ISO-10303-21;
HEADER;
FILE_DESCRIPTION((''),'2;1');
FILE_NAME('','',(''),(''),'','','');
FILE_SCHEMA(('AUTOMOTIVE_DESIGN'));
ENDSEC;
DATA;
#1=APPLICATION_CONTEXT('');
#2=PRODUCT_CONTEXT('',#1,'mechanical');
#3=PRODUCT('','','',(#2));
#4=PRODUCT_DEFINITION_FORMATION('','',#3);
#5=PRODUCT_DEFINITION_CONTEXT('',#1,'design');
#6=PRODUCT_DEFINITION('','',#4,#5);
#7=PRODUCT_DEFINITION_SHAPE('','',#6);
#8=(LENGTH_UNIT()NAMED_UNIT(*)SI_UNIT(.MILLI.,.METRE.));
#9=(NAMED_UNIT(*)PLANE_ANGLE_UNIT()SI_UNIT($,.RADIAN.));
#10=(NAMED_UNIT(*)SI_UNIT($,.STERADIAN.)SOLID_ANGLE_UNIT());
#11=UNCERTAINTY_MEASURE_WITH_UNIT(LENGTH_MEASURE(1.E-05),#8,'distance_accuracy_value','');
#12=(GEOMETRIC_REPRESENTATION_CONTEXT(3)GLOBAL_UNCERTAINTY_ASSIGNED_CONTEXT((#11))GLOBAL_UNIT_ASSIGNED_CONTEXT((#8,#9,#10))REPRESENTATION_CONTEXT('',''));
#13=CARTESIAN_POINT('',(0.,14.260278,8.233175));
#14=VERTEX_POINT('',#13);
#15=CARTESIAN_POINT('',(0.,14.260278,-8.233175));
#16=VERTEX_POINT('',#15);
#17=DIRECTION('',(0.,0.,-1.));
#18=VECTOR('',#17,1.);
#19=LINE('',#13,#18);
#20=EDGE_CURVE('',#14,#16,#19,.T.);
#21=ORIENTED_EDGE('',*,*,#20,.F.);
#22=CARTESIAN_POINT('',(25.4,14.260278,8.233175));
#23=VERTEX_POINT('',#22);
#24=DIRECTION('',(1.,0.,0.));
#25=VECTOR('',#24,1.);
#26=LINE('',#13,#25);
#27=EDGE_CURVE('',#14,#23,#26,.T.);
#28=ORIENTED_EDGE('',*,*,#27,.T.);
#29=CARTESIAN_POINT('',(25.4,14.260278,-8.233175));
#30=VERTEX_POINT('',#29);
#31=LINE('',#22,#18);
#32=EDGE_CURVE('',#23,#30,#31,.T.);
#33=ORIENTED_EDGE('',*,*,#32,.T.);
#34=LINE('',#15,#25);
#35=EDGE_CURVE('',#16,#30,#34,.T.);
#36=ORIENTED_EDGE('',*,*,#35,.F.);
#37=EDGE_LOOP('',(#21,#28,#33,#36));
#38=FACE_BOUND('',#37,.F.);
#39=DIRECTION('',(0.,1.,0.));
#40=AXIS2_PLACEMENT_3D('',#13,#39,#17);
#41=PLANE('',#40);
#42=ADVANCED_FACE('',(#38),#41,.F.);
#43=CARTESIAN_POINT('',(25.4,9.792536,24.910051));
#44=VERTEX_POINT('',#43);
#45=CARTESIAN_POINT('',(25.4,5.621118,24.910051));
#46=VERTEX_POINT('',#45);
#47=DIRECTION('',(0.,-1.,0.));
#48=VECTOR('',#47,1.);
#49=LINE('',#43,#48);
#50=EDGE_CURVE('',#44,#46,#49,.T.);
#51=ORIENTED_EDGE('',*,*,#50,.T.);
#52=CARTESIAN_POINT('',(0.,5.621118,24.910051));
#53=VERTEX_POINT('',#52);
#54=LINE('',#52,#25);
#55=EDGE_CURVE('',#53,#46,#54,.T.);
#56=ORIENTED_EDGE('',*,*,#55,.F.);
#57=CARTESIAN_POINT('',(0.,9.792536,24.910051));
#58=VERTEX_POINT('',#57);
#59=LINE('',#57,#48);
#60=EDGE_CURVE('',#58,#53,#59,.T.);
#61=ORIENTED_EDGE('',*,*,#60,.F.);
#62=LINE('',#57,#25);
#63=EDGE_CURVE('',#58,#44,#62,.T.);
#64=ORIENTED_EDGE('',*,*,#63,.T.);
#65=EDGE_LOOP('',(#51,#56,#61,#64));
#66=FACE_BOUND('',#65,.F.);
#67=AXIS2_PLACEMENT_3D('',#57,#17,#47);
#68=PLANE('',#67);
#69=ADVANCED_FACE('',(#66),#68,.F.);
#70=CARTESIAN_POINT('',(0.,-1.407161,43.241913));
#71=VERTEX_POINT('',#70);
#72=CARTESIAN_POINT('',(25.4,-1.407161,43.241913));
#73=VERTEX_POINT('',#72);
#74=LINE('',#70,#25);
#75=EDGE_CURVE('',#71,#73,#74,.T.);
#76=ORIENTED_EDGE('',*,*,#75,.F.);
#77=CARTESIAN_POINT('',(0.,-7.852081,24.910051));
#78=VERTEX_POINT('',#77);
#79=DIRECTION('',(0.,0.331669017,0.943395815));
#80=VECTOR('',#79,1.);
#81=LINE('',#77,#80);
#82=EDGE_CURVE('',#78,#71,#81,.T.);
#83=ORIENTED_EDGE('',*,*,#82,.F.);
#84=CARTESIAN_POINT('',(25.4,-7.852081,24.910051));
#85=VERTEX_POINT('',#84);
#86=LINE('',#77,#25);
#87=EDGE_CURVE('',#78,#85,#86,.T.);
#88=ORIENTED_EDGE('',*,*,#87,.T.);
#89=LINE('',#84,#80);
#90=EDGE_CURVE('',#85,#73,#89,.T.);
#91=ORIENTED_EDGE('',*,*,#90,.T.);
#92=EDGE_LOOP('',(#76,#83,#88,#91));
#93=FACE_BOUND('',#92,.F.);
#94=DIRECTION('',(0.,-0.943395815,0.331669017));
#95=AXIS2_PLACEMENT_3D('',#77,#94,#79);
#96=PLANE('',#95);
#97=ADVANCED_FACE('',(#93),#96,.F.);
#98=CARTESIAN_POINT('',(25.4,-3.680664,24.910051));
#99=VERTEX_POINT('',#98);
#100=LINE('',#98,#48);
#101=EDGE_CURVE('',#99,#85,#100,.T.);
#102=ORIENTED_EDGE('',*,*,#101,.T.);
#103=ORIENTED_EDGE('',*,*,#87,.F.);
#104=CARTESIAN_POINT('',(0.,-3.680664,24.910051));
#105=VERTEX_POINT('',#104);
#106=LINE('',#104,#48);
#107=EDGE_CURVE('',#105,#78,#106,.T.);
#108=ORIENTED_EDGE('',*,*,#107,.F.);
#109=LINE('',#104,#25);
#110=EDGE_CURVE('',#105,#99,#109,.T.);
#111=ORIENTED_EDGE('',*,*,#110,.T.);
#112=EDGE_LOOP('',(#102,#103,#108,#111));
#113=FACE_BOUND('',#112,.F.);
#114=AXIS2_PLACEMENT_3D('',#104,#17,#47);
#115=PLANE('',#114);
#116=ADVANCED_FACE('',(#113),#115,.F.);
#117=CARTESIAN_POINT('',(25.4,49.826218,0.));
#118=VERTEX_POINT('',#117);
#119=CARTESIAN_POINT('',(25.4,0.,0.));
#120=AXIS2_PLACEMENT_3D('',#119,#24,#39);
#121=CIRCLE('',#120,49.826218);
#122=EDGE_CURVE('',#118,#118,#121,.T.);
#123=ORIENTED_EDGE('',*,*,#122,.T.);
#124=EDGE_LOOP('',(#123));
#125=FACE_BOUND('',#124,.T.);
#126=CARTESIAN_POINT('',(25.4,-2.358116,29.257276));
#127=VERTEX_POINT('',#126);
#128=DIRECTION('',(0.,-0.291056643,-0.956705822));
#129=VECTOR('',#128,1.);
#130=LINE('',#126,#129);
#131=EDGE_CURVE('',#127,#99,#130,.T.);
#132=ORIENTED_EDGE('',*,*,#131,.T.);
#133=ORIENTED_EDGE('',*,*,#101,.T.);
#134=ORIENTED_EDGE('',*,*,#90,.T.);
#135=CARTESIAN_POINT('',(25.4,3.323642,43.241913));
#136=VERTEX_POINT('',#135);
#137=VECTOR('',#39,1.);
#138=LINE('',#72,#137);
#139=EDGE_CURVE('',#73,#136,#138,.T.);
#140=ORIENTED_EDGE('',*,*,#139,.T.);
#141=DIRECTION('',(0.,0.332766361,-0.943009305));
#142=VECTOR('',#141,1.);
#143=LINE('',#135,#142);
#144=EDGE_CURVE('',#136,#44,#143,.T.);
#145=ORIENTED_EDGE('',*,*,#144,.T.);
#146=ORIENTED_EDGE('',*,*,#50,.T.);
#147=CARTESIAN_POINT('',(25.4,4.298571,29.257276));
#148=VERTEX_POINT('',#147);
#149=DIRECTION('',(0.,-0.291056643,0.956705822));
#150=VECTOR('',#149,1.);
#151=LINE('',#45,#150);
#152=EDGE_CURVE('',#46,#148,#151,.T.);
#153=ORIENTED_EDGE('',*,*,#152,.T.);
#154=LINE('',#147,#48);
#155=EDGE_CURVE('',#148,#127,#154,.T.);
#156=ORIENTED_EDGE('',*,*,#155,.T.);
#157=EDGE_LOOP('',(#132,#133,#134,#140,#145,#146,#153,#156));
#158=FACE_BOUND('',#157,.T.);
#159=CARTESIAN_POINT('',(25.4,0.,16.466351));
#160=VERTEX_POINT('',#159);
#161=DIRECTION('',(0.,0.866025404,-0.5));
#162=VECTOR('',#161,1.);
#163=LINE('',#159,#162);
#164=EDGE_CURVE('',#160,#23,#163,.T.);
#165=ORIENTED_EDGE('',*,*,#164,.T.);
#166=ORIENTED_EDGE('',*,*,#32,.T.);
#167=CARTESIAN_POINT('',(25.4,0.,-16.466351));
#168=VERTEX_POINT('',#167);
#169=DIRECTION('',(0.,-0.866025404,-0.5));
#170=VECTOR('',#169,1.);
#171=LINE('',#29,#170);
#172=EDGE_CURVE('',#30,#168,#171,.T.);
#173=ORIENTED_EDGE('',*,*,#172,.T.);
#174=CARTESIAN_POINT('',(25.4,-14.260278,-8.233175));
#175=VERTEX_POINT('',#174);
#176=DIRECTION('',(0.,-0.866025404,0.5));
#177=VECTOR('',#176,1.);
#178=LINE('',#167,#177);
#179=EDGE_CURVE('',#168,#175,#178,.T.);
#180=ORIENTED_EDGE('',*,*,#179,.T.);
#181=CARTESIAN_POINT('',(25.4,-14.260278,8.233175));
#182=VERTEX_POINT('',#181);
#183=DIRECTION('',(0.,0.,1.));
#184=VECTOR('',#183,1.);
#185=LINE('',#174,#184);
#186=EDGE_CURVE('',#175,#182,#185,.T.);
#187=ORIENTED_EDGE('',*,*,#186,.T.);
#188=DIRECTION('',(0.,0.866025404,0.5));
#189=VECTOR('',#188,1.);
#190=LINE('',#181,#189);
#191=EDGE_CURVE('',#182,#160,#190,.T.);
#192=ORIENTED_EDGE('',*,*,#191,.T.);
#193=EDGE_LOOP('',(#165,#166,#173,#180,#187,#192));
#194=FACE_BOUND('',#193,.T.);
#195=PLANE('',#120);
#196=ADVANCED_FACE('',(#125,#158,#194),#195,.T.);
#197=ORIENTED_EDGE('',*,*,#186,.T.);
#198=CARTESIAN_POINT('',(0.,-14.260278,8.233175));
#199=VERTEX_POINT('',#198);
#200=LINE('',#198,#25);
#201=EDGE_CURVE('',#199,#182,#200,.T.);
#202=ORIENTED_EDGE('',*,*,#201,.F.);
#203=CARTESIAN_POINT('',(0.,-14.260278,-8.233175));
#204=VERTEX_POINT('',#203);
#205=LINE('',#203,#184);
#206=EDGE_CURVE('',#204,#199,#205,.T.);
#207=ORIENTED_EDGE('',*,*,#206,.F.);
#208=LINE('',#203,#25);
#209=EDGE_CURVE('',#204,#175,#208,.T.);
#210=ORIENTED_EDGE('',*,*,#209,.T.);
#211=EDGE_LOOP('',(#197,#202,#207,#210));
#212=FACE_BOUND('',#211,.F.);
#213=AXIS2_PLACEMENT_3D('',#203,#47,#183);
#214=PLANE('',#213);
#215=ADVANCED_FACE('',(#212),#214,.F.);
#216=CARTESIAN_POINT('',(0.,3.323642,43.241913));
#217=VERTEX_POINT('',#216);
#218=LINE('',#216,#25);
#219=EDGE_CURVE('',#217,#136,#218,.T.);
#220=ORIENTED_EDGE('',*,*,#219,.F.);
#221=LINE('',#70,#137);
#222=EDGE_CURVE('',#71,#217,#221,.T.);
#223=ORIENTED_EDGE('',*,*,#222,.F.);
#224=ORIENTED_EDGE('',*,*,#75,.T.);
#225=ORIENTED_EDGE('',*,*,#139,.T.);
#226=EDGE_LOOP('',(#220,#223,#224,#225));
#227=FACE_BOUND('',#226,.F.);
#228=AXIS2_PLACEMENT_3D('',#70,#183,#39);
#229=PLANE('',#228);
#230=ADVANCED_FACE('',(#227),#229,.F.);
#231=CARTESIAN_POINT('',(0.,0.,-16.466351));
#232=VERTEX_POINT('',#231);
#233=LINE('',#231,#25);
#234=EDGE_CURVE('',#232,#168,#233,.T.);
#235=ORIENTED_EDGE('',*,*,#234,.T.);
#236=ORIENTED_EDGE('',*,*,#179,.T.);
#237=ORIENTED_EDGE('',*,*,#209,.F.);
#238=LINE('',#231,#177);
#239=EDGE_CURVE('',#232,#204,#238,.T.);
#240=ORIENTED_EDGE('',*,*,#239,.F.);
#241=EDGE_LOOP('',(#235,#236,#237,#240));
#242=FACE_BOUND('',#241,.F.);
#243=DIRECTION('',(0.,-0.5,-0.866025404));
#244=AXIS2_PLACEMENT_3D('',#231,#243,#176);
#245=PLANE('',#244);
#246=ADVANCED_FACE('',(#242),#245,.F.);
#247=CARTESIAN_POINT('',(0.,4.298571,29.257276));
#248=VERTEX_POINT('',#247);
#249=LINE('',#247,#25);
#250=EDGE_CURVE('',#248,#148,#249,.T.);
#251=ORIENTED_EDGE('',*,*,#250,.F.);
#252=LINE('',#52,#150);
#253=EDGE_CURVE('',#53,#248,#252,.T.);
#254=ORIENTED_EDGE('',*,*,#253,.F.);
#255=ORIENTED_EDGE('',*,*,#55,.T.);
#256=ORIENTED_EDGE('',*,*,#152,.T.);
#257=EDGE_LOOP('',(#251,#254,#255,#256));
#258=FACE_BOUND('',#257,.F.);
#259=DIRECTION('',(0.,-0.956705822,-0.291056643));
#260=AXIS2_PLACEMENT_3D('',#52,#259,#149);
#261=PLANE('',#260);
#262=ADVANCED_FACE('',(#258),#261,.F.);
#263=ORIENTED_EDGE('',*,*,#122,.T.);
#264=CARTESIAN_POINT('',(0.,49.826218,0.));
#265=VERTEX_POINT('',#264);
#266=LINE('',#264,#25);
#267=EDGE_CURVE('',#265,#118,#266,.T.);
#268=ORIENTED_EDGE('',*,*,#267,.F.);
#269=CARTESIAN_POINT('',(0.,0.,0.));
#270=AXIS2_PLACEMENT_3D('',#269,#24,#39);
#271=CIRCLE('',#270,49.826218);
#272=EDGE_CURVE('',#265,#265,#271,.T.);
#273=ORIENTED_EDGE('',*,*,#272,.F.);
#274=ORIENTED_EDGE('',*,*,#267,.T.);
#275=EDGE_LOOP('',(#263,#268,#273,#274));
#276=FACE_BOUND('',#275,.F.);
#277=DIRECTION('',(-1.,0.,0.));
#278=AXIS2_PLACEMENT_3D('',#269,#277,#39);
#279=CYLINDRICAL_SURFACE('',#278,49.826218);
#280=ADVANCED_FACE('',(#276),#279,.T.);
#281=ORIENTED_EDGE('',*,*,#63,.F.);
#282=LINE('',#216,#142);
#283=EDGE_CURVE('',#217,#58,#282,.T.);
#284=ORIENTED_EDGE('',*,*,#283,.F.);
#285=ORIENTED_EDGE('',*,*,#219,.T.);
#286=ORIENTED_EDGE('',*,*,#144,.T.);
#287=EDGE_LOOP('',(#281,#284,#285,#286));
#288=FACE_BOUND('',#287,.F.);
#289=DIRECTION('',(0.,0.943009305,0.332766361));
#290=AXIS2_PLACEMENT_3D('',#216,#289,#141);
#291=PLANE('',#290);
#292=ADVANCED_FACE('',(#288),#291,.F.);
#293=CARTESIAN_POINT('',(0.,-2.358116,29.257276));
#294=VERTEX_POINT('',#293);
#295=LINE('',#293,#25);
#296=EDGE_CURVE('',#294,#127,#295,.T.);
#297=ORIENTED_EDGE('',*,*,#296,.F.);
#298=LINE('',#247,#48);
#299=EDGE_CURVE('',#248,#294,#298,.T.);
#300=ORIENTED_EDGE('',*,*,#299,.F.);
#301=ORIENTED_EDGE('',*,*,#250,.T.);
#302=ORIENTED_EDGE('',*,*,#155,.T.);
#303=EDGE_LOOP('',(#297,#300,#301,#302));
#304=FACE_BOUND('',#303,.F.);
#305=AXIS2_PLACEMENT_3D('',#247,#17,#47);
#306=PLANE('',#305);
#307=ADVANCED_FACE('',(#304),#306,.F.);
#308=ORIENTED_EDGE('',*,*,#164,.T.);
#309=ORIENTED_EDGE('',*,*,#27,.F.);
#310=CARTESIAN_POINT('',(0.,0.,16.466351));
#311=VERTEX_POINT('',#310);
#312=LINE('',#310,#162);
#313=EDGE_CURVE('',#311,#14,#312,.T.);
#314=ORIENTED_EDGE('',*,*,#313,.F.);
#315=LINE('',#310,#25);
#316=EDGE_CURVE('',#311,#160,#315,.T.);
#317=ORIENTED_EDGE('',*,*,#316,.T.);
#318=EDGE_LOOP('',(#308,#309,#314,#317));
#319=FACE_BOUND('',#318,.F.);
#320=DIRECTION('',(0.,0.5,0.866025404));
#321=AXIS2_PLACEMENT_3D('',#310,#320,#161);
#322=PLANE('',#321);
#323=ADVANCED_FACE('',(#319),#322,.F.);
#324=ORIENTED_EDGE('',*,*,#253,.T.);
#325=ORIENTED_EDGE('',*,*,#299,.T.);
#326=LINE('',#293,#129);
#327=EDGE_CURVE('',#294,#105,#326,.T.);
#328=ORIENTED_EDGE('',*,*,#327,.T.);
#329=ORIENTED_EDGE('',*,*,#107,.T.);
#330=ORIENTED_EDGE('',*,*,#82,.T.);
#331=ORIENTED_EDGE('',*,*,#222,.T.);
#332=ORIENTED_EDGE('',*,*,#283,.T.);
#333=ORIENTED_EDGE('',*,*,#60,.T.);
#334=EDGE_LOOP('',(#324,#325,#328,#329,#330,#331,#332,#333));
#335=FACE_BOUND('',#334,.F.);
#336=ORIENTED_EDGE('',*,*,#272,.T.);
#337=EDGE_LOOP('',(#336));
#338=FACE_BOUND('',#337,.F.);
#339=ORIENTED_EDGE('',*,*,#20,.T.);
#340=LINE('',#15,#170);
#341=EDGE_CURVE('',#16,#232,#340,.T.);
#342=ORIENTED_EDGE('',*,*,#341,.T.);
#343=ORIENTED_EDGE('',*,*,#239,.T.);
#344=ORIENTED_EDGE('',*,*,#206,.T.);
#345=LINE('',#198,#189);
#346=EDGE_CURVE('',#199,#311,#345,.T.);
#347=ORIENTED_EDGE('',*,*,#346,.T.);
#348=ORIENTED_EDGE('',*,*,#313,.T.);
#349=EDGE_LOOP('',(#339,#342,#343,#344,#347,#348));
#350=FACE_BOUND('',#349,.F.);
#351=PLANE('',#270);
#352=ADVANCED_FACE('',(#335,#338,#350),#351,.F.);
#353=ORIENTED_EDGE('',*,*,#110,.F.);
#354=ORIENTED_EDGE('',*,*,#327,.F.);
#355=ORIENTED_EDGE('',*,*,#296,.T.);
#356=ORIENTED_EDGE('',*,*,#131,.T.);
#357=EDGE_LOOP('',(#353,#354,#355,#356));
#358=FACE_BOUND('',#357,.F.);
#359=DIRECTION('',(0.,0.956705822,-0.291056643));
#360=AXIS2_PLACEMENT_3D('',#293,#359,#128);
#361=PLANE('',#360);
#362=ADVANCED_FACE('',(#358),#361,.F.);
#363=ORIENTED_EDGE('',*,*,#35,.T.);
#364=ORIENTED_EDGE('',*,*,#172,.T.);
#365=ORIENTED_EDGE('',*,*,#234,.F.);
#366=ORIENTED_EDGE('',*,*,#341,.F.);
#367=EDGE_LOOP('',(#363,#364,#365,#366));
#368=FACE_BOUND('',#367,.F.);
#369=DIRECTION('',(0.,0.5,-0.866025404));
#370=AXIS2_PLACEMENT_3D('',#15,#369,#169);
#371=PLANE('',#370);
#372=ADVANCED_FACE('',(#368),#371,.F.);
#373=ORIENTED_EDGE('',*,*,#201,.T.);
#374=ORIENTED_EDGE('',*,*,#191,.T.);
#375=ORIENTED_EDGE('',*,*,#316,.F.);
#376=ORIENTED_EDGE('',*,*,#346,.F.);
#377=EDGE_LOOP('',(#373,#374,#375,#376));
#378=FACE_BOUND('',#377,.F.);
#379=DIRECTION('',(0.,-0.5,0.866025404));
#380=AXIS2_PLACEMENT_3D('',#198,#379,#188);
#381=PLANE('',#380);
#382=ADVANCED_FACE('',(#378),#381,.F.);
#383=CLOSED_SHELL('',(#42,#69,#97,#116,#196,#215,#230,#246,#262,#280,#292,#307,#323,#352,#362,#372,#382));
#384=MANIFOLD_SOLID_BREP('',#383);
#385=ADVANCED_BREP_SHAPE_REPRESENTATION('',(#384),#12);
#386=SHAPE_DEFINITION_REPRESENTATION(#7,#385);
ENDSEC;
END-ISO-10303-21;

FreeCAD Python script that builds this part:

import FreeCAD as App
import Part
import Sketcher

V = App.Vector
Q = App.Units.Quantity


def add_polygon(sketch, points):
    """Adds a closed chain of lines whose ends are joined by coincident constraints."""
    first, n = sketch.GeometryCount, len(points)
    for a, b in zip(points, points[1:] + points[:1]):
        sketch.addGeometry(Part.LineSegment(App.Vector(*a, 0), App.Vector(*b, 0)), False)
    for i in range(n):
        sketch.addConstraint(Sketcher.Constraint("Coincident", first + i, 2, first + (i + 1) % n, 1))

doc = App.newDocument("Part")
body = doc.addObject("PartDesign::Body", "Body")

sketch1 = doc.addObject("Sketcher::SketchObject", "Sketch")
body.addObject(sketch1)
sketch1.AttachmentSupport = (doc.YZ_Plane, [""])
sketch1.MapMode = "FlatFace"
sketch1.addGeometry(Part.Circle(V(0, 0, 0), V(0, 0, 1), 49.8), False)
add_polygon(sketch1, [(-14.3, 8.2), (0, 16.5), (14.3, 8.2), (14.3, -8.2), (0, -16.5), (-14.3, -8.2)])
add_polygon(sketch1, [(3.3, 43.2), (9.8, 24.9), (5.6, 24.9), (4.3, 29.3), (-2.4, 29.3), (-3.7, 24.9), (-7.9, 24.9), (-1.4, 43.2)])
sketch1.addConstraint(Sketcher.Constraint("Vertical", 3))
sketch1.addConstraint(Sketcher.Constraint("Vertical", 6))
sketch1.addConstraint(Sketcher.Constraint("Horizontal", 8))
sketch1.addConstraint(Sketcher.Constraint("Horizontal", 10))
sketch1.addConstraint(Sketcher.Constraint("Horizontal", 12))
sketch1.addConstraint(Sketcher.Constraint("Horizontal", 14))
sketch1.addConstraint(Sketcher.Constraint("Coincident", 0, 3, -1, 1))
sketch1.addConstraint(Sketcher.Constraint("Symmetric", 1, 2, 4, 2, -1, 1))
sketch1.addConstraint(Sketcher.Constraint("Symmetric", 2, 2, 5, 2, -1, 1))
sketch1.addConstraint(Sketcher.Constraint("PointOnObject", 1, 2, -2))
sketch1.addConstraint(Sketcher.Constraint("Parallel", 1, 4))
sketch1.addConstraint(Sketcher.Constraint("Horizontal", 3, 2, 5, 2))
sketch1.addConstraint(Sketcher.Constraint("Horizontal", 8, 2, 11, 2))
sketch1.addConstraint(Sketcher.Constraint("Equal", 8, 12))
sketch1.addConstraint(Sketcher.Constraint("Equal", 9, 11))
sketch1.addConstraint(Sketcher.Constraint("Angle", 1, Q("30 deg")))
sketch1.addConstraint(Sketcher.Constraint("Diameter", 0, 99.652436))
sketch1.addConstraint(Sketcher.Constraint("DistanceX", 13, 2, -1, 1, Q("0.0554 in")))
sketch1.addConstraint(Sketcher.Constraint("DistanceY", 3, 2, 3, 1, 16.466351))
sketch1.addConstraint(Sketcher.Constraint("DistanceY", 4, 2, 1, 2, 32.932702))
sketch1.addConstraint(Sketcher.Constraint("DistanceY", 1, 2, 7, 2, 8.443701))
sketch1.addConstraint(Sketcher.Constraint("DistanceY", 2, 2, 9, 2, 21.0241))
sketch1.addConstraint(Sketcher.Constraint("DistanceX", 11, 2, 7, 2, 13.473199))
sketch1.addConstraint(Sketcher.Constraint("Distance", 9, 4.543951))
sketch1.addConstraint(Sketcher.Constraint("DistanceX", 8, 2, 8, 1, 4.171418))
sketch1.addConstraint(Sketcher.Constraint("DistanceX", 14, 1, 14, 2, 4.730803))
sketch1.addConstraint(Sketcher.Constraint("DistanceX", -1, 1, 8, 2, 5.621118))
sketch1.addConstraint(Sketcher.Constraint("DistanceY", 11, 2, 13, 2, 18.331862))
pad1 = doc.addObject("PartDesign::Pad", "Pad")
body.addObject(pad1)
pad1.Profile = sketch1
pad1.Length = Q("1 in")

doc.recompute()
